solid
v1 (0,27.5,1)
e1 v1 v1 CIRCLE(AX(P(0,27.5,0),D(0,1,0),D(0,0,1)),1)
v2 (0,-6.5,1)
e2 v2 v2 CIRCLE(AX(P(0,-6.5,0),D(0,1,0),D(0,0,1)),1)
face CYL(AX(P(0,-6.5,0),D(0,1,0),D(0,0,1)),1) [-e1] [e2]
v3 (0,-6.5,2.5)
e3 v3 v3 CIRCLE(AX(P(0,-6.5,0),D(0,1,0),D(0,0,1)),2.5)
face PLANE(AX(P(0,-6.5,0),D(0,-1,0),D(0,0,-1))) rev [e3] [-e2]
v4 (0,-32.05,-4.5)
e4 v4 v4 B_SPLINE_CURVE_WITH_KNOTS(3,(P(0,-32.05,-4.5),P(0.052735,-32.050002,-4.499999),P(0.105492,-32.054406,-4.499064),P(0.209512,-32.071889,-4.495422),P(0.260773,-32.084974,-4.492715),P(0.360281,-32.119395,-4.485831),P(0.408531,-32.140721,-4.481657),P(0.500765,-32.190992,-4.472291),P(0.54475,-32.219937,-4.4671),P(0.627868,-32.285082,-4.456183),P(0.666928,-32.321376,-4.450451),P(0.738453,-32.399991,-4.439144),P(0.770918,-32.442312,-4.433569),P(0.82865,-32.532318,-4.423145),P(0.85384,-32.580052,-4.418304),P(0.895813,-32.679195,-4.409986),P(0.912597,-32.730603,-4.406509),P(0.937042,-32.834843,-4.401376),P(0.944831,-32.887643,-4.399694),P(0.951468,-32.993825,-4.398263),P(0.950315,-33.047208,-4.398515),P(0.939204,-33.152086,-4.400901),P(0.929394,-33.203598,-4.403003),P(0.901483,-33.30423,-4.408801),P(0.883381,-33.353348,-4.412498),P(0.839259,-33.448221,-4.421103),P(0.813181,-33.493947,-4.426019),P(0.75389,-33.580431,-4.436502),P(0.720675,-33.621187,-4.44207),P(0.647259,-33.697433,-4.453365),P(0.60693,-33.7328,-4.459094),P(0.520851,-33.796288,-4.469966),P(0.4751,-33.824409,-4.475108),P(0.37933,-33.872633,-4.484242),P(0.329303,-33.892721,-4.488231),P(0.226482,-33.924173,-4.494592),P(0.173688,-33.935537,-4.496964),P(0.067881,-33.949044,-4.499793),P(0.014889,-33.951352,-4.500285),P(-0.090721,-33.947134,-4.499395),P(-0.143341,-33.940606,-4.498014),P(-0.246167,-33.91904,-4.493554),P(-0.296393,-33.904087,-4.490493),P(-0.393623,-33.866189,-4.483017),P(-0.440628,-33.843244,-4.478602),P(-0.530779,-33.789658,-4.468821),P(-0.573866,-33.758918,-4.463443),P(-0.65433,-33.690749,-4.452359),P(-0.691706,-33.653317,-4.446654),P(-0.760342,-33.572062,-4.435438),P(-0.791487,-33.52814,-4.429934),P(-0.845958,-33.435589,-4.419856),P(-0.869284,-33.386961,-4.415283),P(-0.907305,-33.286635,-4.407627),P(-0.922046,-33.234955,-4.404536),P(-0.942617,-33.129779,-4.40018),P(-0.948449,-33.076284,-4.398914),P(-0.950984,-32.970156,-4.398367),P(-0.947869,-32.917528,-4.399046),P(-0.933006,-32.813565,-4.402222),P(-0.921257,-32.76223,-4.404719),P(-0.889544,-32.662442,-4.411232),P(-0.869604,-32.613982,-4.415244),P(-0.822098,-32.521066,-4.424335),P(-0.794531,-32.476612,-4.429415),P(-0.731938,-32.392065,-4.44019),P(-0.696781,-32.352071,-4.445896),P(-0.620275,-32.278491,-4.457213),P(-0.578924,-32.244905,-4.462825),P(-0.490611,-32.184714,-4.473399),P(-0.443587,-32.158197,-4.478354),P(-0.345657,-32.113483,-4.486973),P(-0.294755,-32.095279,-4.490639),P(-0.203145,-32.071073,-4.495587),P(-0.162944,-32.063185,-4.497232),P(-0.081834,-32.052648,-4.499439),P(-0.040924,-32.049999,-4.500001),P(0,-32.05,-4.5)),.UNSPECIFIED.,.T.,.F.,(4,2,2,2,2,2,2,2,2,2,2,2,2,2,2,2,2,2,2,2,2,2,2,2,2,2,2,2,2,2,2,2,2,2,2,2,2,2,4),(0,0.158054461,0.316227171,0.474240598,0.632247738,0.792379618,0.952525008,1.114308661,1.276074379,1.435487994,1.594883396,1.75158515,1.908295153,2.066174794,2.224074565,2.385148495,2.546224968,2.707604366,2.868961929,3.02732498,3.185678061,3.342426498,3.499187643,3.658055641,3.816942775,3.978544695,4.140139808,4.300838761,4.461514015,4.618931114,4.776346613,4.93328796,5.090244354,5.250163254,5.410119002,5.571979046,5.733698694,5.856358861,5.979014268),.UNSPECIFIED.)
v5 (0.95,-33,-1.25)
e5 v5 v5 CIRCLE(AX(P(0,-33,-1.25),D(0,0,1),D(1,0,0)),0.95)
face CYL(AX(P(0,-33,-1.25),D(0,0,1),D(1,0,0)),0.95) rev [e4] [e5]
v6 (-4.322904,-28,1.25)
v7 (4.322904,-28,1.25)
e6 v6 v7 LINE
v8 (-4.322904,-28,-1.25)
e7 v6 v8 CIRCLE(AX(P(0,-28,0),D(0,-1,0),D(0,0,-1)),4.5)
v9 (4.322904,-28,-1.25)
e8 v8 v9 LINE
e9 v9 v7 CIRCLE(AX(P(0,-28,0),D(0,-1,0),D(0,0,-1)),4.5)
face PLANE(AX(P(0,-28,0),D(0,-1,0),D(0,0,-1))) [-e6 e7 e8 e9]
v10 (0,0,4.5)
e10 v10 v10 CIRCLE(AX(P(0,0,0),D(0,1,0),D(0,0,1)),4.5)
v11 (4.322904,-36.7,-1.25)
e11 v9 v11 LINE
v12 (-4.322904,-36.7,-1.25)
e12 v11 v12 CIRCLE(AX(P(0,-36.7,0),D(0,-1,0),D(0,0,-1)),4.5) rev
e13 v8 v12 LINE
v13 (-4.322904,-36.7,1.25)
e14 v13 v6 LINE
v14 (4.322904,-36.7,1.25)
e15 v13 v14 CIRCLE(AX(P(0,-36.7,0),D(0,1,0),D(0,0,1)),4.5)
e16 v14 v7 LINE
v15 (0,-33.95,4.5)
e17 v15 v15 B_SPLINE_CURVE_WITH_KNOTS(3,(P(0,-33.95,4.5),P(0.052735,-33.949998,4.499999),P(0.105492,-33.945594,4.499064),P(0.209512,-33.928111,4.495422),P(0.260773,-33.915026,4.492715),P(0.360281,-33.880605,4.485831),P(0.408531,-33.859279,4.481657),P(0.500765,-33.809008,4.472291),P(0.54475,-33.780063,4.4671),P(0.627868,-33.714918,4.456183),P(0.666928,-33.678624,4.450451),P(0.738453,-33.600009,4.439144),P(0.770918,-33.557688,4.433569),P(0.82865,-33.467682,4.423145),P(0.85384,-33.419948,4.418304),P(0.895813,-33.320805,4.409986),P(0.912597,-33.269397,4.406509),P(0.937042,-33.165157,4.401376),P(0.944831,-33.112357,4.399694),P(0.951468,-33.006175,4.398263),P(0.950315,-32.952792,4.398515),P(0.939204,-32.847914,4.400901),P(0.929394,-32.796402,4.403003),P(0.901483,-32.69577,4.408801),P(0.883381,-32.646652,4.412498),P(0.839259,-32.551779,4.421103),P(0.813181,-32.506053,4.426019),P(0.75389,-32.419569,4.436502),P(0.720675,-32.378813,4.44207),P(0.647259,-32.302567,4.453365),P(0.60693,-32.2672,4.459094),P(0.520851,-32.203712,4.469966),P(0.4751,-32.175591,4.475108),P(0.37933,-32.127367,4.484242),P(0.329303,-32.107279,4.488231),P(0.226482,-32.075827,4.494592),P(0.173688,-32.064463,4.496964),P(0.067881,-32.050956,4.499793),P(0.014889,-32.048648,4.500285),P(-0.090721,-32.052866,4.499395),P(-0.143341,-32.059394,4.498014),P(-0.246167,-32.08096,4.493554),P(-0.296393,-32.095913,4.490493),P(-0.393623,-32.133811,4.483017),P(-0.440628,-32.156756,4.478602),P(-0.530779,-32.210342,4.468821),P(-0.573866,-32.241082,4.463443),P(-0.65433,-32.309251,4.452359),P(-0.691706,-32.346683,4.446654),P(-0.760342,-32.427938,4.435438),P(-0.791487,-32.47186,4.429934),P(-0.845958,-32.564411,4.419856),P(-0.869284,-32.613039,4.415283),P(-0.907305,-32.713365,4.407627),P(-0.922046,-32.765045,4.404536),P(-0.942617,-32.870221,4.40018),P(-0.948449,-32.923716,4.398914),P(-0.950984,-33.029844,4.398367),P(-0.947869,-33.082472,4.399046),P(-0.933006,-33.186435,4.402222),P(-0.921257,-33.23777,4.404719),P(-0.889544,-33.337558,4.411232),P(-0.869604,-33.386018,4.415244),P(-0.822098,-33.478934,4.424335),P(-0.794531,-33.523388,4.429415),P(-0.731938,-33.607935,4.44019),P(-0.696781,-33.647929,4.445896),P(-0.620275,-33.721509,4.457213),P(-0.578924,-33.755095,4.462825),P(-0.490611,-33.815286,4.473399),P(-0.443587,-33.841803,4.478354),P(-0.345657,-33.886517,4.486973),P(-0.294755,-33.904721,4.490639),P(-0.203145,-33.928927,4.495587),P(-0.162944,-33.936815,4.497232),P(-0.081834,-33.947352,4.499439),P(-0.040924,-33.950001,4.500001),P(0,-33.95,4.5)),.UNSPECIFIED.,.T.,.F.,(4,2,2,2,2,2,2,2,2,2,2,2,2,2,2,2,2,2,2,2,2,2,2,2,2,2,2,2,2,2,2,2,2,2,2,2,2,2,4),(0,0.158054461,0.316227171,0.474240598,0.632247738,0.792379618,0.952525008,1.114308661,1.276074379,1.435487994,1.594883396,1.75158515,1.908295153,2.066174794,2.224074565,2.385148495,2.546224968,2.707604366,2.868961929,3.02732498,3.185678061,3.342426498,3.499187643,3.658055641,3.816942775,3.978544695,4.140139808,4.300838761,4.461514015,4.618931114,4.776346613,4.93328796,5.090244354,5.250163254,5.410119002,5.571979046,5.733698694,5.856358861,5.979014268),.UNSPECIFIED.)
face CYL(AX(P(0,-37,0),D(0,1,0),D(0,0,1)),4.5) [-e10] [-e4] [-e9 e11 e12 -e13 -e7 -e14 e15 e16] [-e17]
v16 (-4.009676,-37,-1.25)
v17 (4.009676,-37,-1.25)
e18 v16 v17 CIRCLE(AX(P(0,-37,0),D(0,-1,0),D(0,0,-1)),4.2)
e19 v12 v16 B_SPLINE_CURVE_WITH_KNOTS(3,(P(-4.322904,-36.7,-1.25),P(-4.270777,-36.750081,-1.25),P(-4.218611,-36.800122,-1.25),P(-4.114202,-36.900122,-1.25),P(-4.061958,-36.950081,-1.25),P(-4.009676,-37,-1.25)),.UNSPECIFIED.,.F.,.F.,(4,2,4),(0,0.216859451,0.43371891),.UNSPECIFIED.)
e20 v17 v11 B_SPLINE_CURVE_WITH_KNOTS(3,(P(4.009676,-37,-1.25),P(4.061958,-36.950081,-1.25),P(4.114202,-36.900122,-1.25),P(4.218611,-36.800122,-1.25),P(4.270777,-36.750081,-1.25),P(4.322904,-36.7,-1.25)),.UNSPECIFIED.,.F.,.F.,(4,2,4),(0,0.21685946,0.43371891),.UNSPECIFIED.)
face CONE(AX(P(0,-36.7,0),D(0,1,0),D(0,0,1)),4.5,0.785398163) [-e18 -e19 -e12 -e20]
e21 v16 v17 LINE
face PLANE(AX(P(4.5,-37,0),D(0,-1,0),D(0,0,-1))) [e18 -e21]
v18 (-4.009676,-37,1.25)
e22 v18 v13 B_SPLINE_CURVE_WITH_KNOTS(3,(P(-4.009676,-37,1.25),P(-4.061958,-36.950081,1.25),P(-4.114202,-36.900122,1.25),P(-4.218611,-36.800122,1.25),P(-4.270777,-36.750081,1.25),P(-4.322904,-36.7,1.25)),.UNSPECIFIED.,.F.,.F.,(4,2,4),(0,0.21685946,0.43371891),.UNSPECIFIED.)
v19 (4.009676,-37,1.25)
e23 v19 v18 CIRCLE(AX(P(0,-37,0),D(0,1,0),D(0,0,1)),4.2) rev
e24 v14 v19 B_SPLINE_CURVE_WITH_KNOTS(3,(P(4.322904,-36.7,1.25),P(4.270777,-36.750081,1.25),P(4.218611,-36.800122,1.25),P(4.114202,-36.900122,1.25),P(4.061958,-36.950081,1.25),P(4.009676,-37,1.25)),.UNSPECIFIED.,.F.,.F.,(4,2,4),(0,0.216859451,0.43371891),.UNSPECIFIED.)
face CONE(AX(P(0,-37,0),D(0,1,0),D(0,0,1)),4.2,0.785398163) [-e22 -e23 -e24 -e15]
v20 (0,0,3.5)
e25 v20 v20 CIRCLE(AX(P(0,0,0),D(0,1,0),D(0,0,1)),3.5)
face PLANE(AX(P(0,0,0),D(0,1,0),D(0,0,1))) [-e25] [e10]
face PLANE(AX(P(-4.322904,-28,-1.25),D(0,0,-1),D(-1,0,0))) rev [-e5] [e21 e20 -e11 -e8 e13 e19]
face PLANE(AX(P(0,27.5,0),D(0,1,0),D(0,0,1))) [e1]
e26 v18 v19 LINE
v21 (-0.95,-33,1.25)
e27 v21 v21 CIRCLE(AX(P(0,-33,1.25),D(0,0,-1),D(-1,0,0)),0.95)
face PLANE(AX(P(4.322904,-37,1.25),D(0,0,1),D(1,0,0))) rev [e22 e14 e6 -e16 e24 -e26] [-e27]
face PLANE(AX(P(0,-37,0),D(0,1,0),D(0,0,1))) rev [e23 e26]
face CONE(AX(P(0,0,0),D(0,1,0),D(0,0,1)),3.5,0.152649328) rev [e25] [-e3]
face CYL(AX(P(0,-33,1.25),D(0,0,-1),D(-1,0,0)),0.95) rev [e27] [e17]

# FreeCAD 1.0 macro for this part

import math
import FreeCAD as App
import Part
import Sketcher
Q = App.Units.Quantity


def edges_at(feature, points):
    """Names of the edges that pass closest to the given points."""
    edges = feature.Shape.Edges
    near = lambda p: min(range(len(edges)), key=lambda i: edges[i].distToShape(Part.Vertex(*p))[0])
    return sorted({f"Edge{near(p) + 1}" for p in points})


def add_polygon(sketch, points):
    """Adds a closed chain of lines whose ends are joined by coincident constraints."""
    first, n = sketch.GeometryCount, len(points)
    for a, b in zip(points, points[1:] + points[:1]):
        sketch.addGeometry(Part.LineSegment(App.Vector(*a, 0), App.Vector(*b, 0)), False)
    for i in range(n):
        sketch.addConstraint(Sketcher.Constraint("Coincident", first + i, 2, first + (i + 1) % n, 1))

doc = App.newDocument("Part")
body = doc.addObject("PartDesign::Body", "Body")

# Sketch on XY plane
sketch1 = body.newObject("Sketcher::SketchObject", "Sketch")
sketch1.AttachmentSupport = (doc.getObject("XY_Plane"), [""])
sketch1.MapMode = "FlatFace"
add_polygon(sketch1, [(4.5, 0), (4.5, -37), (0, -37), (0, 0)])  # lines 0-3
sketch1.addConstraint([
    Sketcher.Constraint("Vertical", 0),
    Sketcher.Constraint("Horizontal", 1),
    Sketcher.Constraint("Vertical", 2),
    Sketcher.Constraint("Horizontal", 3),
    Sketcher.Constraint("Coincident", 2, 2, -1, 1),
    Sketcher.Constraint("DistanceY", 0, 2, 0, 1, Q("37 mm")),
    Sketcher.Constraint("DistanceX", 1, 2, 1, 1, Q("4.5 mm")),
])
revolution = body.newObject("PartDesign::Revolution", "Revolution")
revolution.Profile = sketch1
revolution.ReferenceAxis = (sketch1, ["V_Axis"])
revolution.Angle = 360

# Sketch on XZ plane
sketch2 = body.newObject("Sketcher::SketchObject", "Sketch001")
sketch2.AttachmentSupport = (doc.getObject("XZ_Plane"), [""])
sketch2.MapMode = "FlatFace"
sketch2.AttachmentOffset = App.Placement(App.Vector(0, 0, 37), App.Rotation())
sketch2.addGeometry([
    Part.LineSegment(App.Vector(-4.3, -1.2, 0), App.Vector(4.3, -1.2, 0)),
    Part.ArcOfCircle(Part.Circle(App.Vector(0, 0, 0), App.Vector(0, 0, 1), 4.5), math.radians(-16), math.radians(196)),
], False)
sketch2.addConstraint([
    Sketcher.Constraint("Coincident", 0, 1, 1, 2),
    Sketcher.Constraint("Coincident", 1, 1, 0, 2),
    Sketcher.Constraint("Horizontal", 0),
    Sketcher.Constraint("Coincident", 1, 3, -1, 1),
    Sketcher.Constraint("Radius", 1, Q("4.5 mm")),
    Sketcher.Constraint("DistanceY", 0, 1, -1, 1, Q("1.25 mm")),
])
pocket1 = body.newObject("PartDesign::Pocket", "Pocket")
pocket1.Profile = sketch2
pocket1.Length = 9

# Sketch on XZ plane
sketch3 = body.newObject("Sketcher::SketchObject", "Sketch002")
sketch3.AttachmentSupport = (doc.getObject("XZ_Plane"), [""])
sketch3.MapMode = "FlatFace"
sketch3.AttachmentOffset = App.Placement(App.Vector(0, 0, 37), App.Rotation())
sketch3.addGeometry([
    Part.LineSegment(App.Vector(-4.3, 1.2, 0), App.Vector(4.3, 1.2, 0)),
    Part.ArcOfCircle(Part.Circle(App.Vector(0, 0, 0), App.Vector(0, 0, 1), 4.5), math.radians(16), math.radians(164)),
], False)
sketch3.addConstraint([
    Sketcher.Constraint("Coincident", 0, 1, 1, 2),
    Sketcher.Constraint("Coincident", 1, 1, 0, 2),
    Sketcher.Constraint("Horizontal", 0),
    Sketcher.Constraint("Coincident", 1, 3, -1, 1),
    Sketcher.Constraint("Radius", 1, Q("4.5 mm")),
    Sketcher.Constraint("DistanceY", -1, 1, 0, 1, Q("1.25 mm")),
])
pad1 = body.newObject("PartDesign::Pad", "Pad")
pad1.Profile = sketch3
pad1.Length = 9
pad1.Reversed = True

# Sketch on YZ plane
sketch4 = body.newObject("Sketcher::SketchObject", "Sketch003")
sketch4.AttachmentSupport = (doc.getObject("YZ_Plane"), [""])
sketch4.MapMode = "FlatFace"
add_polygon(sketch4, [(-6.5, 0), (0, 0), (0, 3.5), (-6.5, 2.5)])  # lines 0-3
sketch4.addConstraint([
    Sketcher.Constraint("Horizontal", 0),
    Sketcher.Constraint("Vertical", 1),
    Sketcher.Constraint("Vertical", 3),
    Sketcher.Constraint("Coincident", 0, 2, -1, 1),
    Sketcher.Constraint("DistanceX", 0, 1, 0, 2, Q("6.5 mm")),
    Sketcher.Constraint("DistanceY", 1, 1, 1, 2, Q("3.5 mm")),
    Sketcher.Constraint("DistanceY", 3, 2, 3, 1, Q("2.5 mm")),
])
groove = body.newObject("PartDesign::Groove", "Groove")
groove.Profile = sketch4
groove.ReferenceAxis = (sketch4, ["H_Axis"])
groove.Angle = 360

# Sketch on XY plane
sketch5 = body.newObject("Sketcher::SketchObject", "Sketch004")
sketch5.AttachmentSupport = (doc.getObject("XY_Plane"), [""])
sketch5.MapMode = "FlatFace"
add_polygon(sketch5, [(1, 27.5), (1, -6.5), (0, -6.5), (0, 27.5)])  # lines 0-3
sketch5.addConstraint([
    Sketcher.Constraint("Vertical", 0),
    Sketcher.Constraint("Horizontal", 1),
    Sketcher.Constraint("Vertical", 2),
    Sketcher.Constraint("Horizontal", 3),
    Sketcher.Constraint("PointOnObject", 1, 2, -2),
    Sketcher.Constraint("DistanceX", 1, 2, 1, 1, Q("1 mm")),
    Sketcher.Constraint("DistanceY", 0, 2, 0, 1, Q("34 mm")),
    Sketcher.Constraint("DistanceY", 0, 2, -1, 1, Q("6.5 mm")),
])
revolution2 = body.newObject("PartDesign::Revolution", "Revolution001")
revolution2.Profile = sketch5
revolution2.ReferenceAxis = (sketch5, ["V_Axis"])
revolution2.Angle = 360

# Sketch on YZ plane
sketch6 = body.newObject("Sketcher::SketchObject", "Sketch005")
sketch6.AttachmentSupport = (doc.getObject("YZ_Plane"), [""])
sketch6.MapMode = "FlatFace"
add_polygon(sketch6, [(-33, 4.5), (-33, 1.2), (-32, 1.2), (-32, 4.5)])  # lines 0-3
sketch6.addGeometry(Part.LineSegment(App.Vector(-33, 1.2, 0), App.Vector(-33, 4.5, 0)), True)  # axis
sketch6.addConstraint([
    Sketcher.Constraint("Vertical", 0),
    Sketcher.Constraint("Horizontal", 1),
    Sketcher.Constraint("Vertical", 2),
    Sketcher.Constraint("Horizontal", 3),
    Sketcher.Constraint("Vertical", 4),
    Sketcher.Constraint("Coincident", 4, 1, 0, 2),
    Sketcher.Constraint("Horizontal", 2, 2, 4, 2),
    Sketcher.Constraint("DistanceX", 0, 2, -1, 1, Q("33 mm")),
    Sketcher.Constraint("DistanceX", 1, 1, 1, 2, Q("0.95 mm")),
    Sketcher.Constraint("DistanceY", 0, 2, 0, 1, Q("3.25 mm")),
    Sketcher.Constraint("DistanceY", -1, 1, 2, 2, Q("4.5 mm")),
])
groove2 = body.newObject("PartDesign::Groove", "Groove001")
groove2.Profile = sketch6
groove2.ReferenceAxis = (sketch6, ["Axis0"])
groove2.Angle = 360

# Sketch on XY plane
sketch7 = body.newObject("Sketcher::SketchObject", "Sketch006")
sketch7.AttachmentSupport = (doc.getObject("XY_Plane"), [""])
sketch7.MapMode = "FlatFace"
sketch7.AttachmentOffset = App.Placement(App.Vector(0, 0, -1.25), App.Rotation())
sketch7.addGeometry(Part.Circle(App.Vector(0, -33, 0), App.Vector(0, 0, 1), 0.9), False)
sketch7.addConstraint([
    Sketcher.Constraint("PointOnObject", 0, 3, -2),
    Sketcher.Constraint("Diameter", 0, Q("1.9 mm")),
    Sketcher.Constraint("DistanceY", 0, 3, -1, 1, Q("33 mm")),
])
doc.recompute()
hole = body.newObject("PartDesign::Hole", "Hole")
hole.Profile = sketch7
hole.ThreadType = "None"
hole.Diameter = 1.9
hole.DepthType = "ThroughAll"
doc.recompute()

chamfer = body.newObject("PartDesign::Chamfer", "Chamfer")
chamfer.Base = (hole, edges_at(hole, [(0, -37, 4.5), (0, -37, -4.5)]))
chamfer.Size = 0.3

doc.recompute()
